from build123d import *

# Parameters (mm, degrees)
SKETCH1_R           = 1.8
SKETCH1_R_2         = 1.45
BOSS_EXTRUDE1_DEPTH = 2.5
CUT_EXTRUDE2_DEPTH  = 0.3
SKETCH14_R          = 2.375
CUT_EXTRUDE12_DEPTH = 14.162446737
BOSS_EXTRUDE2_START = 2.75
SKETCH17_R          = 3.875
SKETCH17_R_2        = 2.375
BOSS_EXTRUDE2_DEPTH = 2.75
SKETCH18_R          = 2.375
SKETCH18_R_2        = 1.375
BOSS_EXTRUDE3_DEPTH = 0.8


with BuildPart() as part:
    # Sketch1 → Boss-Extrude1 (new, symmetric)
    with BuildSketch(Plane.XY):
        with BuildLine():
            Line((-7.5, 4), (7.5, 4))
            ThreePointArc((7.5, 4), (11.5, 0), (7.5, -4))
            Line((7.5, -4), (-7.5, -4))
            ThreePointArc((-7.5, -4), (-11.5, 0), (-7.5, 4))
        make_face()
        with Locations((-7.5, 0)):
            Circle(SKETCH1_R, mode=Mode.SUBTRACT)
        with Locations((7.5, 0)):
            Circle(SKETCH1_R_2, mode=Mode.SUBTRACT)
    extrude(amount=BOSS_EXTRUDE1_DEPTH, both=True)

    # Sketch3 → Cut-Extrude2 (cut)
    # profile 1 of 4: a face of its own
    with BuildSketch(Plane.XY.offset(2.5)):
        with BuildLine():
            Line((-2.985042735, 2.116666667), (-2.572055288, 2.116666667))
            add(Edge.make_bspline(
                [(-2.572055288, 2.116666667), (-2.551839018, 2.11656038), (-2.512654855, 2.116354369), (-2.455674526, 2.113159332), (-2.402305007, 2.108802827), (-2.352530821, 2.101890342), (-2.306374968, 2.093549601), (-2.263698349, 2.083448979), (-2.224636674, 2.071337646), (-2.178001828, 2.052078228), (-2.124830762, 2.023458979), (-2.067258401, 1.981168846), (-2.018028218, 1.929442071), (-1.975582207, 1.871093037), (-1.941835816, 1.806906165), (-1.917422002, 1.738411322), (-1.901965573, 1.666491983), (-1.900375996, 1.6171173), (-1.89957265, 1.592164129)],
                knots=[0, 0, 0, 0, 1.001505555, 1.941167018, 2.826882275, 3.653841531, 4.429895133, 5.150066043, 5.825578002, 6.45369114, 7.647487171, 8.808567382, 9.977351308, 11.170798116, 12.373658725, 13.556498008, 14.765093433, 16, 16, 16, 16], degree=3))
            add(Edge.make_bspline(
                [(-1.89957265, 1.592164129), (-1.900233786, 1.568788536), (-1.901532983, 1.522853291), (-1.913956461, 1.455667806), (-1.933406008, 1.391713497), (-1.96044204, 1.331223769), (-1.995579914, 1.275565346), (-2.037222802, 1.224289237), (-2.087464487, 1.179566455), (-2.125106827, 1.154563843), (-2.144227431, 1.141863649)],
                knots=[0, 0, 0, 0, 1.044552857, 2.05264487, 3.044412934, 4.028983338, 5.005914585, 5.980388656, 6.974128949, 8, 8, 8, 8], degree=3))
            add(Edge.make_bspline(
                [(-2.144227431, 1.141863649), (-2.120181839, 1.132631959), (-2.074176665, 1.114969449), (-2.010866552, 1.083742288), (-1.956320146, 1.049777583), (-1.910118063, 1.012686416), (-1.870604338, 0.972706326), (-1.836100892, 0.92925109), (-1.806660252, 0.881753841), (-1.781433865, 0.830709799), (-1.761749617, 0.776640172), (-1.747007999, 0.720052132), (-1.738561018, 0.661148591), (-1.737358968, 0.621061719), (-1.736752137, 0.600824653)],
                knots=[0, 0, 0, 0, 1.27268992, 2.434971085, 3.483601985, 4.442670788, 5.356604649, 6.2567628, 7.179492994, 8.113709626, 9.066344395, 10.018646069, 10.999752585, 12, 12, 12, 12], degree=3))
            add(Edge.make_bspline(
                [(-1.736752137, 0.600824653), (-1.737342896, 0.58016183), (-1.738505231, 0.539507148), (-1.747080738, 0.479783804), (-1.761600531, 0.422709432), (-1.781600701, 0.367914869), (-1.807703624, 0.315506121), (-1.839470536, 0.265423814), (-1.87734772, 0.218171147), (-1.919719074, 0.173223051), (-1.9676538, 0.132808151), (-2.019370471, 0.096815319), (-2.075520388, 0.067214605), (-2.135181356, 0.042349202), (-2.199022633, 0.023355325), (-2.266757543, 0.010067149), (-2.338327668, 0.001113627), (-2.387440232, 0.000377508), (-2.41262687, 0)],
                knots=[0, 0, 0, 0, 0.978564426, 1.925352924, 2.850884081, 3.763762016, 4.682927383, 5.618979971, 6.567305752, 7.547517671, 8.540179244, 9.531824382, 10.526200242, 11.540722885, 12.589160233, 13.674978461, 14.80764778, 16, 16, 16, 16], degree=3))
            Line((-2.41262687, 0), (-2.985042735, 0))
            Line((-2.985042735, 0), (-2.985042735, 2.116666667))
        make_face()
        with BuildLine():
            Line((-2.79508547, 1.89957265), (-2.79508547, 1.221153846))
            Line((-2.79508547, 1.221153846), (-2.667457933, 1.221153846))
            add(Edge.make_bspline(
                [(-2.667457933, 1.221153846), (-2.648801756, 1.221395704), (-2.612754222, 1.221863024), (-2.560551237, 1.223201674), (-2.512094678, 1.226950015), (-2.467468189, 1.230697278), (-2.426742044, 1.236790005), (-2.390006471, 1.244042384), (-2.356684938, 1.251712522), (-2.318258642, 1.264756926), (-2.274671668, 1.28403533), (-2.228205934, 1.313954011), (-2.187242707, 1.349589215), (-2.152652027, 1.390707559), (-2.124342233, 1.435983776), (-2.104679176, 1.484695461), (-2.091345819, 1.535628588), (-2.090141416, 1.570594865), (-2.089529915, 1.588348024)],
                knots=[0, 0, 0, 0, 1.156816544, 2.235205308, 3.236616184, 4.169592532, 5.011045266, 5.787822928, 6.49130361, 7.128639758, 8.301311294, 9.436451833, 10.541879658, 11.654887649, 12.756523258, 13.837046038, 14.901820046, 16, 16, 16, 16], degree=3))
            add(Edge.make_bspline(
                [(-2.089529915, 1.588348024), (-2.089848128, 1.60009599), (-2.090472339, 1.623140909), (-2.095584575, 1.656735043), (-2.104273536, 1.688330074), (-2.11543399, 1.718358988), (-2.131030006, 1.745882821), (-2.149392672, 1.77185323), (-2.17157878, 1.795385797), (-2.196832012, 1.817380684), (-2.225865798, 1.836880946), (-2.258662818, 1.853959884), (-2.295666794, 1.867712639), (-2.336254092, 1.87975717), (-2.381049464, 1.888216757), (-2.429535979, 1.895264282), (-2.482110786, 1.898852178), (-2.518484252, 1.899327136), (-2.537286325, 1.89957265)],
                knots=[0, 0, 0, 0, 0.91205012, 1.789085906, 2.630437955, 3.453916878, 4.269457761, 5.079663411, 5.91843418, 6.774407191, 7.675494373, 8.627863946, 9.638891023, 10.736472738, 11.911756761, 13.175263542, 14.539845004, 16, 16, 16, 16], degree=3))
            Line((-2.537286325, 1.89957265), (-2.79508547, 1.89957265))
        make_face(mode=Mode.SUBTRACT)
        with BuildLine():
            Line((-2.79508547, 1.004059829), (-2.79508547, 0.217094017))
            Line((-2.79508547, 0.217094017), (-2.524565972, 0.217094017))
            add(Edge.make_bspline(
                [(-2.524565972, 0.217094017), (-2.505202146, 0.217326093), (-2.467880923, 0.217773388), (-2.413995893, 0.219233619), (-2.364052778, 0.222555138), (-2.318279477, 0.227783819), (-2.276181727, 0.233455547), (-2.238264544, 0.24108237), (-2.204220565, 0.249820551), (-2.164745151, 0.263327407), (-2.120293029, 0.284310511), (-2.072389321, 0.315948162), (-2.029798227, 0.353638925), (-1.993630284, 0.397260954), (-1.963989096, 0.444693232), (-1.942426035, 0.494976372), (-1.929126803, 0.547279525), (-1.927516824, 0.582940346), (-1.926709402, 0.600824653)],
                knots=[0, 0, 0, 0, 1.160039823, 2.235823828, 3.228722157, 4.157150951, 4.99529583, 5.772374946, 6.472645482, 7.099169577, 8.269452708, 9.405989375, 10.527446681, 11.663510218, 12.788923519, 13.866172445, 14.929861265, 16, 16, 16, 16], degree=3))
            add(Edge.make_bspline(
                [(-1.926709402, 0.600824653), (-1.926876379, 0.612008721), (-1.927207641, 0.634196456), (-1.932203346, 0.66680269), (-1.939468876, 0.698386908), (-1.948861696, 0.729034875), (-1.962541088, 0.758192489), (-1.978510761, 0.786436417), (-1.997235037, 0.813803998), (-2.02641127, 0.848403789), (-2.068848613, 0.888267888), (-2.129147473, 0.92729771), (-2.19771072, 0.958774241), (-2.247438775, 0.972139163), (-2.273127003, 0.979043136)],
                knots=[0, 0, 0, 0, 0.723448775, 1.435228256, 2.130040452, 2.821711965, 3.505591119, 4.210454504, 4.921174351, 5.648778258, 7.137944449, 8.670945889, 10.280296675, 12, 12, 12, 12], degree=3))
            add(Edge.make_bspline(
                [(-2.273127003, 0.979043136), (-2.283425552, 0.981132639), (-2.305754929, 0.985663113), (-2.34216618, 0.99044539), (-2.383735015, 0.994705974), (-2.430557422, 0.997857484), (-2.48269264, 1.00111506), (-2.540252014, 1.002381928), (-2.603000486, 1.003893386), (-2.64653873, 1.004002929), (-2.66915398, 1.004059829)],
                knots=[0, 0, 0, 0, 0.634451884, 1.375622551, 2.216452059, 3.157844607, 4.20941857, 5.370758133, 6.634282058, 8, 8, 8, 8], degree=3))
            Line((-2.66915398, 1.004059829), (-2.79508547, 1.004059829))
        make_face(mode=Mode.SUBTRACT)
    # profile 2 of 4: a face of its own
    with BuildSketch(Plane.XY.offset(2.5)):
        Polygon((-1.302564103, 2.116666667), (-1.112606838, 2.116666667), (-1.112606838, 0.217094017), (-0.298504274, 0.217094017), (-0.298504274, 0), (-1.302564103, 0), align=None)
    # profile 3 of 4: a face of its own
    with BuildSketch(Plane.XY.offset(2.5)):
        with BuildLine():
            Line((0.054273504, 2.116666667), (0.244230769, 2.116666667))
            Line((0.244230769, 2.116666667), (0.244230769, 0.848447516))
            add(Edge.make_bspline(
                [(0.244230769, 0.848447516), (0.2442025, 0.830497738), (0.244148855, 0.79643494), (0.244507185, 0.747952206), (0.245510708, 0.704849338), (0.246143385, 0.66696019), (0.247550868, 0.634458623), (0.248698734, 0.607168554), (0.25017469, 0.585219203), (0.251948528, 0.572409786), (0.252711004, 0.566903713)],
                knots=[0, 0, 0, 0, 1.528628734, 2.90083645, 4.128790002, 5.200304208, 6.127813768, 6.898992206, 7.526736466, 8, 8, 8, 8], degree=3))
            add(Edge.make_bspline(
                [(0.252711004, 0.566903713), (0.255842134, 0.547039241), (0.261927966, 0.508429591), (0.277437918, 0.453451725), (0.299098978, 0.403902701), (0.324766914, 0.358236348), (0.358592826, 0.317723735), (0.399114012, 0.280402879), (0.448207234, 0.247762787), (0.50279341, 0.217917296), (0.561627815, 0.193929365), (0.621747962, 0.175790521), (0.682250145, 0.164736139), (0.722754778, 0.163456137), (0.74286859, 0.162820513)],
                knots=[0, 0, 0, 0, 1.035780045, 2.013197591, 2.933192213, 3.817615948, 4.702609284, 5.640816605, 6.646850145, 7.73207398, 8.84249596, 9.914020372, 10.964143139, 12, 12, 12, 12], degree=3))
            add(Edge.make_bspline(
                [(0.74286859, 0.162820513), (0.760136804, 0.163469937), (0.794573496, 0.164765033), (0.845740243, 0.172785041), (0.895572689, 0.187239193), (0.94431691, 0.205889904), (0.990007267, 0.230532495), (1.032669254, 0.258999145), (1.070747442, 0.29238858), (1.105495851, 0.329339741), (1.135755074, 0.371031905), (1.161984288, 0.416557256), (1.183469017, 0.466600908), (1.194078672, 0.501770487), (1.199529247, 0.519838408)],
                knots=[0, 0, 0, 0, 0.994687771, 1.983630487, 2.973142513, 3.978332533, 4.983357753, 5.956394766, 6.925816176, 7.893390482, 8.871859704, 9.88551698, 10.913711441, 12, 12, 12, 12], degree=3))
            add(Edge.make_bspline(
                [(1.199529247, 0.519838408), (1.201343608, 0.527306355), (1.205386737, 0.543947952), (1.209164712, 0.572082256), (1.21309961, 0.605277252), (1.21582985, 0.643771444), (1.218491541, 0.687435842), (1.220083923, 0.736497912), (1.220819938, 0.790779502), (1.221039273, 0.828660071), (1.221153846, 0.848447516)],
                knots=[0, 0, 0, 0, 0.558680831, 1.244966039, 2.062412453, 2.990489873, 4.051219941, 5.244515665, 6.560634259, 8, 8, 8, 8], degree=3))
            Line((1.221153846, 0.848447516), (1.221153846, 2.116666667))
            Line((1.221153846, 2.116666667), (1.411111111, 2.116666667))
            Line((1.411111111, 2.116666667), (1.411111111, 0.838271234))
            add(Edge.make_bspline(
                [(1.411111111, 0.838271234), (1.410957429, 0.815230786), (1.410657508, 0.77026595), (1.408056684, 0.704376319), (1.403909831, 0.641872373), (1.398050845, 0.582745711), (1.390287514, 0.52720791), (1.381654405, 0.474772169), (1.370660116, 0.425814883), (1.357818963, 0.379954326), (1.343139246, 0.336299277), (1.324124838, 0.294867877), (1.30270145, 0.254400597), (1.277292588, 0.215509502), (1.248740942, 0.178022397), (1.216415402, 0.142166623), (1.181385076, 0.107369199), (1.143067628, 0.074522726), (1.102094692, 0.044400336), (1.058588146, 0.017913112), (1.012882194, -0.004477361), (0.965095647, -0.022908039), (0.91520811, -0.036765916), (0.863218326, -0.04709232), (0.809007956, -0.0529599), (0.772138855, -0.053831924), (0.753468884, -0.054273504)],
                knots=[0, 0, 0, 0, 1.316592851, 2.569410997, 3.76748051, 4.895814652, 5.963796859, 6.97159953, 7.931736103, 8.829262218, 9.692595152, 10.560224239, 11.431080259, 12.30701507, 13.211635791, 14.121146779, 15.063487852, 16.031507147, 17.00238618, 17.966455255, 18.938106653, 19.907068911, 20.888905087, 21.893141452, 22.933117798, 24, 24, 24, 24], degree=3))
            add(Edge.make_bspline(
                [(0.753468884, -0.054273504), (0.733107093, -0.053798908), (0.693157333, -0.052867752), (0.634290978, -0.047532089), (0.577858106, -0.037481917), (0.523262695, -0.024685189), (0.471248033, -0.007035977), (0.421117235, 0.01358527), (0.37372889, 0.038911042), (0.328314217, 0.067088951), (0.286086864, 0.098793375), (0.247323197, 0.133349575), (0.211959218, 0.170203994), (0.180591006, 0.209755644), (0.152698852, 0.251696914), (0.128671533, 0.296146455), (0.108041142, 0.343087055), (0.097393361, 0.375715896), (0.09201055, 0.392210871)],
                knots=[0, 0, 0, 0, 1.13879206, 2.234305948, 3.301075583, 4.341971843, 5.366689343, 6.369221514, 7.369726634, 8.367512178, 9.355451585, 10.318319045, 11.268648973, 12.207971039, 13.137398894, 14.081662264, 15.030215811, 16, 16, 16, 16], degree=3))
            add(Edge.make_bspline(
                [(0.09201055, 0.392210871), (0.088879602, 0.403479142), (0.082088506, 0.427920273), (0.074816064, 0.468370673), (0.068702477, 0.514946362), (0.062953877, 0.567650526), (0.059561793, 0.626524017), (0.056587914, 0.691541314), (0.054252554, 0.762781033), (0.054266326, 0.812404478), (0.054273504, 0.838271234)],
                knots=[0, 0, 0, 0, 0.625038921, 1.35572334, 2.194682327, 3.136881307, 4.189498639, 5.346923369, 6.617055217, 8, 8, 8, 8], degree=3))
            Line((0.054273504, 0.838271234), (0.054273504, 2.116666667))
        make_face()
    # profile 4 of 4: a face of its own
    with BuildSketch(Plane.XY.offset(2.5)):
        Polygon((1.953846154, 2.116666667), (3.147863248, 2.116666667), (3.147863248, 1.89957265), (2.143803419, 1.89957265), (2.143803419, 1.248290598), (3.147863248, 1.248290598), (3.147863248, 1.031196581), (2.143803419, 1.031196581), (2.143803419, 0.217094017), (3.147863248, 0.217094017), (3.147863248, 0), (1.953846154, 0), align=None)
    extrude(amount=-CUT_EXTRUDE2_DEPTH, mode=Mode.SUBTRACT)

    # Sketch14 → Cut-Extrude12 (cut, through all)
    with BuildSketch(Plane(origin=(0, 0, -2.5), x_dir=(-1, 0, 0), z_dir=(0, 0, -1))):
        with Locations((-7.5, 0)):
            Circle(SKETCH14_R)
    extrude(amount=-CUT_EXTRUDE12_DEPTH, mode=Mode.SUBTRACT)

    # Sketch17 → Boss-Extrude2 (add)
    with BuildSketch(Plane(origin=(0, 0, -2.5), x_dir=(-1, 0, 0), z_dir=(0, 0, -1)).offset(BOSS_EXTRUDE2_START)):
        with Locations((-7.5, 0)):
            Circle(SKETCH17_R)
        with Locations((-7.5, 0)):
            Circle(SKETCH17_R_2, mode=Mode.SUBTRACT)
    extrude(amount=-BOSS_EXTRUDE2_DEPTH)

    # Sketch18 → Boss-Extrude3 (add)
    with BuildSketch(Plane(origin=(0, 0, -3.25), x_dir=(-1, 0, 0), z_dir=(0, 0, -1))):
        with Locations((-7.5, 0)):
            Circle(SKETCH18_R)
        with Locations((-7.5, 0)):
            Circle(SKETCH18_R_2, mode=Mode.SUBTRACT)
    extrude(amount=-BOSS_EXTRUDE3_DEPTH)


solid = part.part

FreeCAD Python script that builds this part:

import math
import FreeCAD as App
import Part
import Sketcher
from FreeCAD import Vector
Q = App.Units.Quantity

doc = App.newDocument("Part")
body = doc.addObject("PartDesign::Body", "Body")

sketch1 = doc.addObject("Sketcher::SketchObject", "Sketch")
body.addObject(sketch1)
sketch1.AttachmentSupport = (doc.XY_Plane, [""])
sketch1.MapMode = "FlatFace"
sketch1.addGeometry([
    Part.LineSegment(Vector(7.5, 4, 0), Vector(-7.5, 4, 0)),
    Part.ArcOfCircle(Part.Circle(Vector(-7.5, 0, 0), Vector(0, 0, 1), 4), math.radians(90), math.radians(270)),
    Part.LineSegment(Vector(-7.5, -4, 0), Vector(7.5, -4, 0)),
    Part.ArcOfCircle(Part.Circle(Vector(7.5, 0, 0), Vector(0, 0, 1), 4), math.radians(-90), math.radians(90)),
    Part.Circle(Vector(7.5, 0, 0), Vector(0, 0, 1), 1.4),
    Part.Circle(Vector(-7.5, 0, 0), Vector(0, 0, 1), 1.8),
], False)
sketch1.addConstraint([
    Sketcher.Constraint("Tangent", 0, 2, 1, 1),
    Sketcher.Constraint("Tangent", 1, 2, 2, 1),
    Sketcher.Constraint("Tangent", 2, 2, 3, 1),
    Sketcher.Constraint("Tangent", 3, 2, 0, 1),
    Sketcher.Constraint("Horizontal", 0),
    Sketcher.Constraint("Horizontal", 2),
    Sketcher.Constraint("Coincident", 4, 3, 3, 3),
    Sketcher.Constraint("Coincident", 5, 3, 1, 3),
    Sketcher.Constraint("Symmetric", 1, 3, 3, 3, -1, 1),
    Sketcher.Constraint("Radius", 1, Q("4 mm")),
    Sketcher.Constraint("Diameter", 4, Q("2.9 mm")),
    Sketcher.Constraint("Diameter", 5, Q("3.6 mm")),
    Sketcher.Constraint("DistanceX", 0, 2, 0, 1, Q("15 mm")),
])
pad1 = doc.addObject("PartDesign::Pad", "Pad")
body.addObject(pad1)
pad1.Profile = sketch1
pad1.Length = 5
pad1.Midplane = True

sketch2 = doc.addObject("Sketcher::SketchObject", "Sketch001")
body.addObject(sketch2)
sketch2.AttachmentSupport = (doc.XY_Plane, [""])
sketch2.MapMode = "FlatFace"
sketch2.AttachmentOffset = App.Placement(Vector(0, 0, 2.5), App.Rotation())
sketch2.addGeometry([
    Part.LineSegment(Vector(-2.572055, 2.116667, 0), Vector(-2.985043, 2.116667, 0)),
    Part.LineSegment(Vector(-2.985043, 2.116667, 0), Vector(-2.985043, 0, 0)),
    Part.LineSegment(Vector(-2.985043, 0, 0), Vector(-2.412627, 0, 0)),
    Part.BSplineCurve([Vector(-1.736752, 0.600825, 0), Vector(-1.737343, 0.580162, 0), Vector(-1.738505, 0.539507, 0), Vector(-1.747081, 0.479784, 0), Vector(-1.761601, 0.422709, 0), Vector(-1.781601, 0.367915, 0), Vector(-1.807704, 0.315506, 0), Vector(-1.839471, 0.265424, 0), Vector(-1.877348, 0.218171, 0), Vector(-1.919719, 0.173223, 0), Vector(-1.967654, 0.132808, 0), Vector(-2.01937, 0.096815, 0), Vector(-2.07552, 0.067215, 0), Vector(-2.135181, 0.042349, 0), Vector(-2.199023, 0.023355, 0), Vector(-2.266758, 0.010067, 0), Vector(-2.338328, 0.001114, 0), Vector(-2.38744, 0.000378, 0), Vector(-2.412627, 0, 0)], [4, 1, 1, 1, 1, 1, 1, 1, 1, 1, 1, 1, 1, 1, 1, 1, 4], [0, 0.978564426, 1.925352924, 2.850884081, 3.763762016, 4.682927383, 5.618979971, 6.567305752, 7.547517671, 8.540179244, 9.531824382, 10.526200242, 11.540722885, 12.589160233, 13.674978461, 14.80764778, 16], False, 3, [1, 1, 1, 1, 1, 1, 1, 1, 1, 1, 1, 1, 1, 1, 1, 1, 1, 1, 1], False),
    Part.BSplineCurve([Vector(-2.144227, 1.141864, 0), Vector(-2.120182, 1.132632, 0), Vector(-2.074177, 1.114969, 0), Vector(-2.010867, 1.083742, 0), Vector(-1.95632, 1.049778, 0), Vector(-1.910118, 1.012686, 0), Vector(-1.870604, 0.972706, 0), Vector(-1.836101, 0.929251, 0), Vector(-1.80666, 0.881754, 0), Vector(-1.781434, 0.83071, 0), Vector(-1.76175, 0.77664, 0), Vector(-1.747008, 0.720052, 0), Vector(-1.738561, 0.661149, 0), Vector(-1.737359, 0.621062, 0), Vector(-1.736752, 0.600825, 0)], [4, 1, 1, 1, 1, 1, 1, 1, 1, 1, 1, 1, 4], [0, 1.27268992, 2.434971085, 3.483601985, 4.442670788, 5.356604649, 6.2567628, 7.179492994, 8.113709626, 9.066344395, 10.018646069, 10.999752585, 12], False, 3, [1, 1, 1, 1, 1, 1, 1, 1, 1, 1, 1, 1, 1, 1, 1], False),
    Part.BSplineCurve([Vector(-1.899573, 1.592164, 0), Vector(-1.900234, 1.568789, 0), Vector(-1.901533, 1.522853, 0), Vector(-1.913956, 1.455668, 0), Vector(-1.933406, 1.391713, 0), Vector(-1.960442, 1.331224, 0), Vector(-1.99558, 1.275565, 0), Vector(-2.037223, 1.224289, 0), Vector(-2.087464, 1.179566, 0), Vector(-2.125107, 1.154564, 0), Vector(-2.144227, 1.141864, 0)], [4, 1, 1, 1, 1, 1, 1, 1, 4], [0, 1.044552857, 2.05264487, 3.044412934, 4.028983338, 5.005914585, 5.980388656, 6.974128949, 8], False, 3, [1, 1, 1, 1, 1, 1, 1, 1, 1, 1, 1], False),
    Part.BSplineCurve([Vector(-2.572055, 2.116667, 0), Vector(-2.551839, 2.11656, 0), Vector(-2.512655, 2.116354, 0), Vector(-2.455675, 2.113159, 0), Vector(-2.402305, 2.108803, 0), Vector(-2.352531, 2.10189, 0), Vector(-2.306375, 2.09355, 0), Vector(-2.263698, 2.083449, 0), Vector(-2.224637, 2.071338, 0), Vector(-2.178002, 2.052078, 0), Vector(-2.124831, 2.023459, 0), Vector(-2.067258, 1.981169, 0), Vector(-2.018028, 1.929442, 0), Vector(-1.975582, 1.871093, 0), Vector(-1.941836, 1.806906, 0), Vector(-1.917422, 1.738411, 0), Vector(-1.901966, 1.666492, 0), Vector(-1.900376, 1.617117, 0), Vector(-1.899573, 1.592164, 0)], [4, 1, 1, 1, 1, 1, 1, 1, 1, 1, 1, 1, 1, 1, 1, 1, 4], [0, 1.001505555, 1.941167018, 2.826882275, 3.653841531, 4.429895133, 5.150066043, 5.825578002, 6.45369114, 7.647487171, 8.808567382, 9.977351308, 11.170798116, 12.373658725, 13.556498008, 14.765093433, 16], False, 3, [1, 1, 1, 1, 1, 1, 1, 1, 1, 1, 1, 1, 1, 1, 1, 1, 1, 1, 1], False),
    Part.LineSegment(Vector(-2.795085, 1.00406, 0), Vector(-2.669154, 1.00406, 0)),
    Part.BSplineCurve([Vector(-2.273127, 0.979043, 0), Vector(-2.283426, 0.981133, 0), Vector(-2.305755, 0.985663, 0), Vector(-2.342166, 0.990445, 0), Vector(-2.383735, 0.994706, 0), Vector(-2.430557, 0.997857, 0), Vector(-2.482693, 1.001115, 0), Vector(-2.540252, 1.002382, 0), Vector(-2.603, 1.003893, 0), Vector(-2.646539, 1.004003, 0), Vector(-2.669154, 1.00406, 0)], [4, 1, 1, 1, 1, 1, 1, 1, 4], [0, 0.634451884, 1.375622551, 2.216452059, 3.157844607, 4.20941857, 5.370758133, 6.634282058, 8], False, 3, [1, 1, 1, 1, 1, 1, 1, 1, 1, 1, 1], False),
    Part.BSplineCurve([Vector(-1.926709, 0.600825, 0), Vector(-1.926876, 0.612009, 0), Vector(-1.927208, 0.634196, 0), Vector(-1.932203, 0.666803, 0), Vector(-1.939469, 0.698387, 0), Vector(-1.948862, 0.729035, 0), Vector(-1.962541, 0.758192, 0), Vector(-1.978511, 0.786436, 0), Vector(-1.997235, 0.813804, 0), Vector(-2.026411, 0.848404, 0), Vector(-2.068849, 0.888268, 0), Vector(-2.129147, 0.927298, 0), Vector(-2.197711, 0.958774, 0), Vector(-2.247439, 0.972139, 0), Vector(-2.273127, 0.979043, 0)], [4, 1, 1, 1, 1, 1, 1, 1, 1, 1, 1, 1, 4], [0, 0.723448775, 1.435228256, 2.130040452, 2.821711965, 3.505591119, 4.210454504, 4.921174351, 5.648778258, 7.137944449, 8.670945889, 10.280296675, 12], False, 3, [1, 1, 1, 1, 1, 1, 1, 1, 1, 1, 1, 1, 1, 1, 1], False),
    Part.BSplineCurve([Vector(-2.524566, 0.217094, 0), Vector(-2.505202, 0.217326, 0), Vector(-2.467881, 0.217773, 0), Vector(-2.413996, 0.219234, 0), Vector(-2.364053, 0.222555, 0), Vector(-2.318279, 0.227784, 0), Vector(-2.276182, 0.233456, 0), Vector(-2.238265, 0.241082, 0), Vector(-2.204221, 0.249821, 0), Vector(-2.164745, 0.263327, 0), Vector(-2.120293, 0.284311, 0), Vector(-2.072389, 0.315948, 0), Vector(-2.029798, 0.353639, 0), Vector(-1.99363, 0.397261, 0), Vector(-1.963989, 0.444693, 0), Vector(-1.942426, 0.494976, 0), Vector(-1.929127, 0.54728, 0), Vector(-1.927517, 0.58294, 0), Vector(-1.926709, 0.600825, 0)], [4, 1, 1, 1, 1, 1, 1, 1, 1, 1, 1, 1, 1, 1, 1, 1, 4], [0, 1.160039823, 2.235823828, 3.228722157, 4.157150951, 4.99529583, 5.772374946, 6.472645482, 7.099169577, 8.269452708, 9.405989375, 10.527446681, 11.663510218, 12.788923519, 13.866172445, 14.929861265, 16], False, 3, [1, 1, 1, 1, 1, 1, 1, 1, 1, 1, 1, 1, 1, 1, 1, 1, 1, 1, 1], False),
    Part.LineSegment(Vector(-2.524566, 0.217094, 0), Vector(-2.795085, 0.217094, 0)),
    Part.LineSegment(Vector(-2.795085, 0.217094, 0), Vector(-2.795085, 1.00406, 0)),
    Part.LineSegment(Vector(-2.795085, 1.899573, 0), Vector(-2.537286, 1.899573, 0)),
    Part.BSplineCurve([Vector(-2.08953, 1.588348, 0), Vector(-2.089848, 1.600096, 0), Vector(-2.090472, 1.623141, 0), Vector(-2.095585, 1.656735, 0), Vector(-2.104274, 1.68833, 0), Vector(-2.115434, 1.718359, 0), Vector(-2.13103, 1.745883, 0), Vector(-2.149393, 1.771853, 0), Vector(-2.171579, 1.795386, 0), Vector(-2.196832, 1.817381, 0), Vector(-2.225866, 1.836881, 0), Vector(-2.258663, 1.85396, 0), Vector(-2.295667, 1.867713, 0), Vector(-2.336254, 1.879757, 0), Vector(-2.381049, 1.888217, 0), Vector(-2.429536, 1.895264, 0), Vector(-2.482111, 1.898852, 0), Vector(-2.518484, 1.899327, 0), Vector(-2.537286, 1.899573, 0)], [4, 1, 1, 1, 1, 1, 1, 1, 1, 1, 1, 1, 1, 1, 1, 1, 4], [0, 0.91205012, 1.789085906, 2.630437955, 3.453916878, 4.269457761, 5.079663411, 5.91843418, 6.774407191, 7.675494373, 8.627863946, 9.638891023, 10.736472738, 11.911756761, 13.175263542, 14.539845004, 16], False, 3, [1, 1, 1, 1, 1, 1, 1, 1, 1, 1, 1, 1, 1, 1, 1, 1, 1, 1, 1], False),
    Part.BSplineCurve([Vector(-2.667458, 1.221154, 0), Vector(-2.648802, 1.221396, 0), Vector(-2.612754, 1.221863, 0), Vector(-2.560551, 1.223202, 0), Vector(-2.512095, 1.22695, 0), Vector(-2.467468, 1.230697, 0), Vector(-2.426742, 1.23679, 0), Vector(-2.390006, 1.244042, 0), Vector(-2.356685, 1.251713, 0), Vector(-2.318259, 1.264757, 0), Vector(-2.274672, 1.284035, 0), Vector(-2.228206, 1.313954, 0), Vector(-2.187243, 1.349589, 0), Vector(-2.152652, 1.390708, 0), Vector(-2.124342, 1.435984, 0), Vector(-2.104679, 1.484695, 0), Vector(-2.091346, 1.535629, 0), Vector(-2.090141, 1.570595, 0), Vector(-2.08953, 1.588348, 0)], [4, 1, 1, 1, 1, 1, 1, 1, 1, 1, 1, 1, 1, 1, 1, 1, 4], [0, 1.156816544, 2.235205308, 3.236616184, 4.169592532, 5.011045266, 5.787822928, 6.49130361, 7.128639758, 8.301311294, 9.436451833, 10.541879658, 11.654887649, 12.756523258, 13.837046038, 14.901820046, 16], False, 3, [1, 1, 1, 1, 1, 1, 1, 1, 1, 1, 1, 1, 1, 1, 1, 1, 1, 1, 1], False),
    Part.LineSegment(Vector(-2.667458, 1.221154, 0), Vector(-2.795085, 1.221154, 0)),
    Part.LineSegment(Vector(-2.795085, 1.221154, 0), Vector(-2.795085, 1.899573, 0)),
    Part.LineSegment(Vector(-1.112607, 2.116667, 0), Vector(-1.302564, 2.116667, 0)),
    Part.LineSegment(Vector(-1.302564, 2.116667, 0), Vector(-1.302564, 0, 0)),
    Part.LineSegment(Vector(-1.302564, 0, 0), Vector(-0.298504, 0, 0)),
    Part.LineSegment(Vector(-0.298504, 0, 0), Vector(-0.298504, 0.217094, 0)),
    Part.LineSegment(Vector(-0.298504, 0.217094, 0), Vector(-1.112607, 0.217094, 0)),
    Part.LineSegment(Vector(-1.112607, 0.217094, 0), Vector(-1.112607, 2.116667, 0)),
    Part.LineSegment(Vector(0.244231, 2.116667, 0), Vector(0.054274, 2.116667, 0)),
    Part.LineSegment(Vector(0.054274, 2.116667, 0), Vector(0.054274, 0.838271, 0)),
    Part.BSplineCurve([Vector(0.092011, 0.392211, 0), Vector(0.08888, 0.403479, 0), Vector(0.082089, 0.42792, 0), Vector(0.074816, 0.468371, 0), Vector(0.068702, 0.514946, 0), Vector(0.062954, 0.567651, 0), Vector(0.059562, 0.626524, 0), Vector(0.056588, 0.691541, 0), Vector(0.054253, 0.762781, 0), Vector(0.054266, 0.812404, 0), Vector(0.054274, 0.838271, 0)], [4, 1, 1, 1, 1, 1, 1, 1, 4], [0, 0.625038921, 1.35572334, 2.194682327, 3.136881307, 4.189498639, 5.346923369, 6.617055217, 8], False, 3, [1, 1, 1, 1, 1, 1, 1, 1, 1, 1, 1], False),
    Part.BSplineCurve([Vector(0.753469, -0.054274, 0), Vector(0.733107, -0.053799, 0), Vector(0.693157, -0.052868, 0), Vector(0.634291, -0.047532, 0), Vector(0.577858, -0.037482, 0), Vector(0.523263, -0.024685, 0), Vector(0.471248, -0.007036, 0), Vector(0.421117, 0.013585, 0), Vector(0.373729, 0.038911, 0), Vector(0.328314, 0.067089, 0), Vector(0.286087, 0.098793, 0), Vector(0.247323, 0.13335, 0), Vector(0.211959, 0.170204, 0), Vector(0.180591, 0.209756, 0), Vector(0.152699, 0.251697, 0), Vector(0.128672, 0.296146, 0), Vector(0.108041, 0.343087, 0), Vector(0.097393, 0.375716, 0), Vector(0.092011, 0.392211, 0)], [4, 1, 1, 1, 1, 1, 1, 1, 1, 1, 1, 1, 1, 1, 1, 1, 4], [0, 1.13879206, 2.234305948, 3.301075583, 4.341971843, 5.366689343, 6.369221514, 7.369726634, 8.367512178, 9.355451585, 10.318319045, 11.268648973, 12.207971039, 13.137398894, 14.081662264, 15.030215811, 16], False, 3, [1, 1, 1, 1, 1, 1, 1, 1, 1, 1, 1, 1, 1, 1, 1, 1, 1, 1, 1], False),
    Part.BSplineCurve([Vector(1.411111, 0.838271, 0), Vector(1.410957, 0.815231, 0), Vector(1.410658, 0.770266, 0), Vector(1.408057, 0.704376, 0), Vector(1.40391, 0.641872, 0), Vector(1.398051, 0.582746, 0), Vector(1.390288, 0.527208, 0), Vector(1.381654, 0.474772, 0), Vector(1.37066, 0.425815, 0), Vector(1.357819, 0.379954, 0), Vector(1.343139, 0.336299, 0), Vector(1.324125, 0.294868, 0), Vector(1.302701, 0.254401, 0), Vector(1.277293, 0.21551, 0), Vector(1.248741, 0.178022, 0), Vector(1.216415, 0.142167, 0), Vector(1.181385, 0.107369, 0), Vector(1.143068, 0.074523, 0), Vector(1.102095, 0.0444, 0), Vector(1.058588, 0.017913, 0), Vector(1.012882, -0.004477, 0), Vector(0.965096, -0.022908, 0), Vector(0.915208, -0.036766, 0), Vector(0.863218, -0.047092, 0), Vector(0.809008, -0.05296, 0), Vector(0.772139, -0.053832, 0), Vector(0.753469, -0.054274, 0)], [4, 1, 1, 1, 1, 1, 1, 1, 1, 1, 1, 1, 1, 1, 1, 1, 1, 1, 1, 1, 1, 1, 1, 1, 4], [0, 1.316592851, 2.569410997, 3.76748051, 4.895814652, 5.963796859, 6.97159953, 7.931736103, 8.829262218, 9.692595152, 10.560224239, 11.431080259, 12.30701507, 13.211635791, 14.121146779, 15.063487852, 16.031507147, 17.00238618, 17.966455255, 18.938106653, 19.907068911, 20.888905087, 21.893141452, 22.933117798, 24], False, 3, [1, 1, 1, 1, 1, 1, 1, 1, 1, 1, 1, 1, 1, 1, 1, 1, 1, 1, 1, 1, 1, 1, 1, 1, 1, 1, 1], False),
    Part.LineSegment(Vector(1.411111, 0.838271, 0), Vector(1.411111, 2.116667, 0)),
    Part.LineSegment(Vector(1.411111, 2.116667, 0), Vector(1.221154, 2.116667, 0)),
    Part.LineSegment(Vector(1.221154, 2.116667, 0), Vector(1.221154, 0.848448, 0)),
    Part.BSplineCurve([Vector(1.199529, 0.519838, 0), Vector(1.201344, 0.527306, 0), Vector(1.205387, 0.543948, 0), Vector(1.209165, 0.572082, 0), Vector(1.2131, 0.605277, 0), Vector(1.21583, 0.643771, 0), Vector(1.218492, 0.687436, 0), Vector(1.220084, 0.736498, 0), Vector(1.22082, 0.79078, 0), Vector(1.221039, 0.82866, 0), Vector(1.221154, 0.848448, 0)], [4, 1, 1, 1, 1, 1, 1, 1, 4], [0, 0.558680831, 1.244966039, 2.062412453, 2.990489873, 4.051219941, 5.244515665, 6.560634259, 8], False, 3, [1, 1, 1, 1, 1, 1, 1, 1, 1, 1, 1], False),
    Part.BSplineCurve([Vector(0.742869, 0.162821, 0), Vector(0.760137, 0.16347, 0), Vector(0.794573, 0.164765, 0), Vector(0.84574, 0.172785, 0), Vector(0.895573, 0.187239, 0), Vector(0.944317, 0.20589, 0), Vector(0.990007, 0.230532, 0), Vector(1.032669, 0.258999, 0), Vector(1.070747, 0.292389, 0), Vector(1.105496, 0.32934, 0), Vector(1.135755, 0.371032, 0), Vector(1.161984, 0.416557, 0), Vector(1.183469, 0.466601, 0), Vector(1.194079, 0.50177, 0), Vector(1.199529, 0.519838, 0)], [4, 1, 1, 1, 1, 1, 1, 1, 1, 1, 1, 1, 4], [0, 0.994687771, 1.983630487, 2.973142513, 3.978332533, 4.983357753, 5.956394766, 6.925816176, 7.893390482, 8.871859704, 9.88551698, 10.913711441, 12], False, 3, [1, 1, 1, 1, 1, 1, 1, 1, 1, 1, 1, 1, 1, 1, 1], False),
    Part.BSplineCurve([Vector(0.252711, 0.566904, 0), Vector(0.255842, 0.547039, 0), Vector(0.261928, 0.50843, 0), Vector(0.277438, 0.453452, 0), Vector(0.299099, 0.403903, 0), Vector(0.324767, 0.358236, 0), Vector(0.358593, 0.317724, 0), Vector(0.399114, 0.280403, 0), Vector(0.448207, 0.247763, 0), Vector(0.502793, 0.217917, 0), Vector(0.561628, 0.193929, 0), Vector(0.621748, 0.175791, 0), Vector(0.68225, 0.164736, 0), Vector(0.722755, 0.163456, 0), Vector(0.742869, 0.162821, 0)], [4, 1, 1, 1, 1, 1, 1, 1, 1, 1, 1, 1, 4], [0, 1.035780045, 2.013197591, 2.933192213, 3.817615948, 4.702609284, 5.640816605, 6.646850145, 7.73207398, 8.84249596, 9.914020372, 10.964143139, 12], False, 3, [1, 1, 1, 1, 1, 1, 1, 1, 1, 1, 1, 1, 1, 1, 1], False),
    Part.BSplineCurve([Vector(0.244231, 0.848448, 0), Vector(0.244202, 0.830498, 0), Vector(0.244149, 0.796435, 0), Vector(0.244507, 0.747952, 0), Vector(0.245511, 0.704849, 0), Vector(0.246143, 0.66696, 0), Vector(0.247551, 0.634459, 0), Vector(0.248699, 0.607169, 0), Vector(0.250175, 0.585219, 0), Vector(0.251949, 0.57241, 0), Vector(0.252711, 0.566904, 0)], [4, 1, 1, 1, 1, 1, 1, 1, 4], [0, 1.528628734, 2.90083645, 4.128790002, 5.200304208, 6.127813768, 6.898992206, 7.526736466, 8], False, 3, [1, 1, 1, 1, 1, 1, 1, 1, 1, 1, 1], False),
    Part.LineSegment(Vector(0.244231, 0.848448, 0), Vector(0.244231, 2.116667, 0)),
    Part.LineSegment(Vector(3.147863, 2.116667, 0), Vector(1.953846, 2.116667, 0)),
    Part.LineSegment(Vector(1.953846, 2.116667, 0), Vector(1.953846, 0, 0)),
    Part.LineSegment(Vector(1.953846, 0, 0), Vector(3.147863, 0, 0)),
    Part.LineSegment(Vector(3.147863, 0, 0), Vector(3.147863, 0.217094, 0)),
    Part.LineSegment(Vector(3.147863, 0.217094, 0), Vector(2.143803, 0.217094, 0)),
    Part.LineSegment(Vector(2.143803, 0.217094, 0), Vector(2.143803, 1.031197, 0)),
    Part.LineSegment(Vector(2.143803, 1.031197, 0), Vector(3.147863, 1.031197, 0)),
    Part.LineSegment(Vector(3.147863, 1.031197, 0), Vector(3.147863, 1.248291, 0)),
    Part.LineSegment(Vector(3.147863, 1.248291, 0), Vector(2.143803, 1.248291, 0)),
    Part.LineSegment(Vector(2.143803, 1.248291, 0), Vector(2.143803, 1.899573, 0)),
    Part.LineSegment(Vector(2.143803, 1.899573, 0), Vector(3.147863, 1.899573, 0)),
    Part.LineSegment(Vector(3.147863, 1.899573, 0), Vector(3.147863, 2.116667, 0)),
], False)
sketch2.addConstraint([
    Sketcher.Constraint("Block", 3),
    Sketcher.Constraint("Block", 4),
    Sketcher.Constraint("Block", 5),
    Sketcher.Constraint("Block", 6),
    Sketcher.Constraint("Block", 8),
    Sketcher.Constraint("Block", 9),
    Sketcher.Constraint("Block", 10),
    Sketcher.Constraint("Block", 14),
    Sketcher.Constraint("Block", 15),
    Sketcher.Constraint("Block", 26),
    Sketcher.Constraint("Block", 27),
    Sketcher.Constraint("Block", 28),
    Sketcher.Constraint("Block", 32),
    Sketcher.Constraint("Block", 33),
    Sketcher.Constraint("Block", 34),
    Sketcher.Constraint("Block", 35),
    Sketcher.Constraint("Coincident", 0, 2, 1, 1),
    Sketcher.Constraint("Coincident", 1, 2, 2, 1),
    Sketcher.Constraint("Coincident", 2, 2, 3, 2),
    Sketcher.Constraint("Coincident", 6, 1, 0, 1),
    Sketcher.Constraint("Coincident", 7, 2, 8, 2),
    Sketcher.Constraint("Coincident", 10, 1, 11, 1),
    Sketcher.Constraint("Coincident", 11, 2, 12, 1),
    Sketcher.Constraint("Coincident", 12, 2, 7, 1),
    Sketcher.Constraint("Coincident", 13, 2, 14, 2),
    Sketcher.Constraint("Coincident", 15, 1, 16, 1),
    Sketcher.Constraint("Coincident", 16, 2, 17, 1),
    Sketcher.Constraint("Coincident", 17, 2, 13, 1),
    Sketcher.Constraint("Coincident", 18, 2, 19, 1),
    Sketcher.Constraint("Coincident", 19, 2, 20, 1),
    Sketcher.Constraint("Coincident", 20, 2, 21, 1),
    Sketcher.Constraint("Coincident", 21, 2, 22, 1),
    Sketcher.Constraint("Coincident", 22, 2, 23, 1),
    Sketcher.Constraint("Coincident", 23, 2, 18, 1),
    Sketcher.Constraint("Coincident", 24, 2, 25, 1),
    Sketcher.Constraint("Coincident", 25, 2, 26, 2),
    Sketcher.Constraint("Coincident", 28, 1, 29, 1),
    Sketcher.Constraint("Coincident", 29, 2, 30, 1),
    Sketcher.Constraint("Coincident", 30, 2, 31, 1),
    Sketcher.Constraint("Coincident", 31, 2, 32, 2),
    Sketcher.Constraint("Coincident", 35, 1, 36, 1),
    Sketcher.Constraint("Coincident", 36, 2, 24, 1),
    Sketcher.Constraint("Coincident", 37, 2, 38, 1),
    Sketcher.Constraint("Coincident", 38, 2, 39, 1),
    Sketcher.Constraint("Coincident", 39, 2, 40, 1),
    Sketcher.Constraint("Coincident", 40, 2, 41, 1),
    Sketcher.Constraint("Coincident", 41, 2, 42, 1),
    Sketcher.Constraint("Coincident", 42, 2, 43, 1),
    Sketcher.Constraint("Coincident", 43, 2, 44, 1),
    Sketcher.Constraint("Coincident", 44, 2, 45, 1),
    Sketcher.Constraint("Coincident", 45, 2, 46, 1),
    Sketcher.Constraint("Coincident", 46, 2, 47, 1),
    Sketcher.Constraint("Coincident", 47, 2, 48, 1),
    Sketcher.Constraint("Coincident", 48, 2, 37, 1),
    Sketcher.Constraint("Horizontal", 0),
    Sketcher.Constraint("Vertical", 1),
    Sketcher.Constraint("Horizontal", 2),
    Sketcher.Constraint("Horizontal", 7),
    Sketcher.Constraint("Horizontal", 11),
    Sketcher.Constraint("Vertical", 12),
    Sketcher.Constraint("Horizontal", 13),
    Sketcher.Constraint("Horizontal", 16),
    Sketcher.Constraint("Vertical", 17),
    Sketcher.Constraint("Horizontal", 18),
    Sketcher.Constraint("Vertical", 19),
    Sketcher.Constraint("Horizontal", 20),
    Sketcher.Constraint("Vertical", 21),
    Sketcher.Constraint("Horizontal", 22),
    Sketcher.Constraint("Vertical", 23),
    Sketcher.Constraint("Horizontal", 24),
    Sketcher.Constraint("Vertical", 25),
    Sketcher.Constraint("Vertical", 29),
    Sketcher.Constraint("Horizontal", 30),
    Sketcher.Constraint("Vertical", 31),
    Sketcher.Constraint("Vertical", 36),
    Sketcher.Constraint("Horizontal", 37),
    Sketcher.Constraint("Vertical", 38),
    Sketcher.Constraint("Horizontal", 39),
    Sketcher.Constraint("Vertical", 40),
    Sketcher.Constraint("Horizontal", 41),
    Sketcher.Constraint("Vertical", 42),
    Sketcher.Constraint("Horizontal", 43),
    Sketcher.Constraint("Vertical", 44),
    Sketcher.Constraint("Horizontal", 45),
    Sketcher.Constraint("Vertical", 46),
    Sketcher.Constraint("Horizontal", 47),
    Sketcher.Constraint("Vertical", 48),
    Sketcher.Constraint("PointOnObject", 19, 2, -1),
    Sketcher.Constraint("PointOnObject", 38, 2, -1),
    Sketcher.Constraint("DistanceX", 13, 1, 13, 2, Q("0.257799 mm")),
    Sketcher.Constraint("DistanceX", 7, 1, 7, 2, Q("0.125931 mm")),
    Sketcher.Constraint("DistanceX", 20, 1, 20, 2, Q("1.00406 mm")),
    Sketcher.Constraint("DistanceX", 41, 2, 41, 1, Q("1.00406 mm")),
    Sketcher.Constraint("DistanceX", 43, 1, 43, 2, Q("1.00406 mm")),
    Sketcher.Constraint("DistanceX", 45, 2, 45, 1, Q("1.00406 mm")),
    Sketcher.Constraint("DistanceX", 47, 1, 47, 2, Q("1.00406 mm")),
    Sketcher.Constraint("DistanceY", 31, 2, 31, 1, Q("1.268219 mm")),
    Sketcher.Constraint("DistanceY", 36, 1, 36, 2, Q("1.268219 mm")),
    Sketcher.Constraint("DistanceX", 0, 2, 0, 1, Q("0.412987 mm")),
    Sketcher.Constraint("DistanceX", 18, 2, 18, 1, Q("0.189957 mm")),
    Sketcher.Constraint("DistanceX", 37, 2, 37, 1, Q("1.194017 mm")),
    Sketcher.Constraint("DistanceY", 19, 2, 19, 1, Q("2.116667 mm")),
    Sketcher.Constraint("DistanceY", 21, 1, 21, 2, Q("0.217094 mm")),
    Sketcher.Constraint("DistanceY", 38, 2, 38, 1, Q("2.116667 mm")),
    Sketcher.Constraint("DistanceY", 40, 1, 40, 2, Q("0.217094 mm")),
    Sketcher.Constraint("DistanceY", 42, 1, 42, 2, Q("0.814103 mm")),
    Sketcher.Constraint("DistanceY", 44, 1, 44, 2, Q("0.217094 mm")),
    Sketcher.Constraint("DistanceY", 46, 1, 46, 2, Q("0.651282 mm")),
    Sketcher.Constraint("DistanceX", 17, 2, 18, 2, Q("1.492521 mm")),
    Sketcher.Constraint("DistanceX", 31, 2, 39, 2, Q("1.926709 mm")),
])
pocket1 = doc.addObject("PartDesign::Pocket", "Pocket")
body.addObject(pocket1)
pocket1.Profile = sketch2
pocket1.Length = 0.3

sketch3 = doc.addObject("Sketcher::SketchObject", "Sketch002")
body.addObject(sketch3)
sketch3.AttachmentSupport = (doc.XY_Plane, [""])
sketch3.MapMode = "FlatFace"
sketch3.AttachmentOffset = App.Placement(Vector(0, 0, -2.5), App.Rotation())
sketch3.addGeometry(Part.Circle(Vector(7.5, 0, 0), Vector(0, 0, 1), 2.4), False)
sketch3.addConstraint([
    Sketcher.Constraint("PointOnObject", 0, 3, -1),
    Sketcher.Constraint("Diameter", 0, Q("4.75 mm")),
    Sketcher.Constraint("DistanceX", -1, 1, 0, 3, Q("7.5 mm")),
])
pocket2 = doc.addObject("PartDesign::Pocket", "Pocket001")
body.addObject(pocket2)
pocket2.Profile = sketch3
pocket2.Type = "ThroughAll"
pocket2.Reversed = True

sketch4 = doc.addObject("Sketcher::SketchObject", "Sketch003")
body.addObject(sketch4)
sketch4.AttachmentSupport = (doc.XY_Plane, [""])
sketch4.MapMode = "FlatFace"
sketch4.AttachmentOffset = App.Placement(Vector(0, 0, -5.25), App.Rotation())
sketch4.addGeometry([
    Part.Circle(Vector(7.5, 0, 0), Vector(0, 0, 1), 3.9),
    Part.Circle(Vector(7.5, 0, 0), Vector(0, 0, 1), 2.4),
], False)
sketch4.addConstraint([
    Sketcher.Constraint("Coincident", 1, 3, 0, 3),
    Sketcher.Constraint("PointOnObject", 0, 3, -1),
    Sketcher.Constraint("Diameter", 0, Q("7.75 mm")),
    Sketcher.Constraint("Diameter", 1, Q("4.75 mm")),
    Sketcher.Constraint("DistanceX", -1, 1, 0, 3, Q("7.5 mm")),
])
pad2 = doc.addObject("PartDesign::Pad", "Pad001")
body.addObject(pad2)
pad2.Profile = sketch4
pad2.Length = 2.75

sketch5 = doc.addObject("Sketcher::SketchObject", "Sketch004")
body.addObject(sketch5)
sketch5.AttachmentSupport = (doc.XY_Plane, [""])
sketch5.MapMode = "FlatFace"
sketch5.AttachmentOffset = App.Placement(Vector(0, 0, -3.25), App.Rotation())
sketch5.addGeometry([
    Part.Circle(Vector(7.5, 0, 0), Vector(0, 0, 1), 2.4),
    Part.Circle(Vector(7.5, 0, 0), Vector(0, 0, 1), 1.4),
], False)
sketch5.addConstraint([
    Sketcher.Constraint("Coincident", 1, 3, 0, 3),
    Sketcher.Constraint("PointOnObject", 0, 3, -1),
    Sketcher.Constraint("Diameter", 0, Q("4.75 mm")),
    Sketcher.Constraint("Diameter", 1, Q("2.75 mm")),
    Sketcher.Constraint("DistanceX", -1, 1, 0, 3, Q("7.5 mm")),
])
pad3 = doc.addObject("PartDesign::Pad", "Pad002")
body.addObject(pad3)
pad3.Profile = sketch5
pad3.Length = 0.8

doc.recompute()
